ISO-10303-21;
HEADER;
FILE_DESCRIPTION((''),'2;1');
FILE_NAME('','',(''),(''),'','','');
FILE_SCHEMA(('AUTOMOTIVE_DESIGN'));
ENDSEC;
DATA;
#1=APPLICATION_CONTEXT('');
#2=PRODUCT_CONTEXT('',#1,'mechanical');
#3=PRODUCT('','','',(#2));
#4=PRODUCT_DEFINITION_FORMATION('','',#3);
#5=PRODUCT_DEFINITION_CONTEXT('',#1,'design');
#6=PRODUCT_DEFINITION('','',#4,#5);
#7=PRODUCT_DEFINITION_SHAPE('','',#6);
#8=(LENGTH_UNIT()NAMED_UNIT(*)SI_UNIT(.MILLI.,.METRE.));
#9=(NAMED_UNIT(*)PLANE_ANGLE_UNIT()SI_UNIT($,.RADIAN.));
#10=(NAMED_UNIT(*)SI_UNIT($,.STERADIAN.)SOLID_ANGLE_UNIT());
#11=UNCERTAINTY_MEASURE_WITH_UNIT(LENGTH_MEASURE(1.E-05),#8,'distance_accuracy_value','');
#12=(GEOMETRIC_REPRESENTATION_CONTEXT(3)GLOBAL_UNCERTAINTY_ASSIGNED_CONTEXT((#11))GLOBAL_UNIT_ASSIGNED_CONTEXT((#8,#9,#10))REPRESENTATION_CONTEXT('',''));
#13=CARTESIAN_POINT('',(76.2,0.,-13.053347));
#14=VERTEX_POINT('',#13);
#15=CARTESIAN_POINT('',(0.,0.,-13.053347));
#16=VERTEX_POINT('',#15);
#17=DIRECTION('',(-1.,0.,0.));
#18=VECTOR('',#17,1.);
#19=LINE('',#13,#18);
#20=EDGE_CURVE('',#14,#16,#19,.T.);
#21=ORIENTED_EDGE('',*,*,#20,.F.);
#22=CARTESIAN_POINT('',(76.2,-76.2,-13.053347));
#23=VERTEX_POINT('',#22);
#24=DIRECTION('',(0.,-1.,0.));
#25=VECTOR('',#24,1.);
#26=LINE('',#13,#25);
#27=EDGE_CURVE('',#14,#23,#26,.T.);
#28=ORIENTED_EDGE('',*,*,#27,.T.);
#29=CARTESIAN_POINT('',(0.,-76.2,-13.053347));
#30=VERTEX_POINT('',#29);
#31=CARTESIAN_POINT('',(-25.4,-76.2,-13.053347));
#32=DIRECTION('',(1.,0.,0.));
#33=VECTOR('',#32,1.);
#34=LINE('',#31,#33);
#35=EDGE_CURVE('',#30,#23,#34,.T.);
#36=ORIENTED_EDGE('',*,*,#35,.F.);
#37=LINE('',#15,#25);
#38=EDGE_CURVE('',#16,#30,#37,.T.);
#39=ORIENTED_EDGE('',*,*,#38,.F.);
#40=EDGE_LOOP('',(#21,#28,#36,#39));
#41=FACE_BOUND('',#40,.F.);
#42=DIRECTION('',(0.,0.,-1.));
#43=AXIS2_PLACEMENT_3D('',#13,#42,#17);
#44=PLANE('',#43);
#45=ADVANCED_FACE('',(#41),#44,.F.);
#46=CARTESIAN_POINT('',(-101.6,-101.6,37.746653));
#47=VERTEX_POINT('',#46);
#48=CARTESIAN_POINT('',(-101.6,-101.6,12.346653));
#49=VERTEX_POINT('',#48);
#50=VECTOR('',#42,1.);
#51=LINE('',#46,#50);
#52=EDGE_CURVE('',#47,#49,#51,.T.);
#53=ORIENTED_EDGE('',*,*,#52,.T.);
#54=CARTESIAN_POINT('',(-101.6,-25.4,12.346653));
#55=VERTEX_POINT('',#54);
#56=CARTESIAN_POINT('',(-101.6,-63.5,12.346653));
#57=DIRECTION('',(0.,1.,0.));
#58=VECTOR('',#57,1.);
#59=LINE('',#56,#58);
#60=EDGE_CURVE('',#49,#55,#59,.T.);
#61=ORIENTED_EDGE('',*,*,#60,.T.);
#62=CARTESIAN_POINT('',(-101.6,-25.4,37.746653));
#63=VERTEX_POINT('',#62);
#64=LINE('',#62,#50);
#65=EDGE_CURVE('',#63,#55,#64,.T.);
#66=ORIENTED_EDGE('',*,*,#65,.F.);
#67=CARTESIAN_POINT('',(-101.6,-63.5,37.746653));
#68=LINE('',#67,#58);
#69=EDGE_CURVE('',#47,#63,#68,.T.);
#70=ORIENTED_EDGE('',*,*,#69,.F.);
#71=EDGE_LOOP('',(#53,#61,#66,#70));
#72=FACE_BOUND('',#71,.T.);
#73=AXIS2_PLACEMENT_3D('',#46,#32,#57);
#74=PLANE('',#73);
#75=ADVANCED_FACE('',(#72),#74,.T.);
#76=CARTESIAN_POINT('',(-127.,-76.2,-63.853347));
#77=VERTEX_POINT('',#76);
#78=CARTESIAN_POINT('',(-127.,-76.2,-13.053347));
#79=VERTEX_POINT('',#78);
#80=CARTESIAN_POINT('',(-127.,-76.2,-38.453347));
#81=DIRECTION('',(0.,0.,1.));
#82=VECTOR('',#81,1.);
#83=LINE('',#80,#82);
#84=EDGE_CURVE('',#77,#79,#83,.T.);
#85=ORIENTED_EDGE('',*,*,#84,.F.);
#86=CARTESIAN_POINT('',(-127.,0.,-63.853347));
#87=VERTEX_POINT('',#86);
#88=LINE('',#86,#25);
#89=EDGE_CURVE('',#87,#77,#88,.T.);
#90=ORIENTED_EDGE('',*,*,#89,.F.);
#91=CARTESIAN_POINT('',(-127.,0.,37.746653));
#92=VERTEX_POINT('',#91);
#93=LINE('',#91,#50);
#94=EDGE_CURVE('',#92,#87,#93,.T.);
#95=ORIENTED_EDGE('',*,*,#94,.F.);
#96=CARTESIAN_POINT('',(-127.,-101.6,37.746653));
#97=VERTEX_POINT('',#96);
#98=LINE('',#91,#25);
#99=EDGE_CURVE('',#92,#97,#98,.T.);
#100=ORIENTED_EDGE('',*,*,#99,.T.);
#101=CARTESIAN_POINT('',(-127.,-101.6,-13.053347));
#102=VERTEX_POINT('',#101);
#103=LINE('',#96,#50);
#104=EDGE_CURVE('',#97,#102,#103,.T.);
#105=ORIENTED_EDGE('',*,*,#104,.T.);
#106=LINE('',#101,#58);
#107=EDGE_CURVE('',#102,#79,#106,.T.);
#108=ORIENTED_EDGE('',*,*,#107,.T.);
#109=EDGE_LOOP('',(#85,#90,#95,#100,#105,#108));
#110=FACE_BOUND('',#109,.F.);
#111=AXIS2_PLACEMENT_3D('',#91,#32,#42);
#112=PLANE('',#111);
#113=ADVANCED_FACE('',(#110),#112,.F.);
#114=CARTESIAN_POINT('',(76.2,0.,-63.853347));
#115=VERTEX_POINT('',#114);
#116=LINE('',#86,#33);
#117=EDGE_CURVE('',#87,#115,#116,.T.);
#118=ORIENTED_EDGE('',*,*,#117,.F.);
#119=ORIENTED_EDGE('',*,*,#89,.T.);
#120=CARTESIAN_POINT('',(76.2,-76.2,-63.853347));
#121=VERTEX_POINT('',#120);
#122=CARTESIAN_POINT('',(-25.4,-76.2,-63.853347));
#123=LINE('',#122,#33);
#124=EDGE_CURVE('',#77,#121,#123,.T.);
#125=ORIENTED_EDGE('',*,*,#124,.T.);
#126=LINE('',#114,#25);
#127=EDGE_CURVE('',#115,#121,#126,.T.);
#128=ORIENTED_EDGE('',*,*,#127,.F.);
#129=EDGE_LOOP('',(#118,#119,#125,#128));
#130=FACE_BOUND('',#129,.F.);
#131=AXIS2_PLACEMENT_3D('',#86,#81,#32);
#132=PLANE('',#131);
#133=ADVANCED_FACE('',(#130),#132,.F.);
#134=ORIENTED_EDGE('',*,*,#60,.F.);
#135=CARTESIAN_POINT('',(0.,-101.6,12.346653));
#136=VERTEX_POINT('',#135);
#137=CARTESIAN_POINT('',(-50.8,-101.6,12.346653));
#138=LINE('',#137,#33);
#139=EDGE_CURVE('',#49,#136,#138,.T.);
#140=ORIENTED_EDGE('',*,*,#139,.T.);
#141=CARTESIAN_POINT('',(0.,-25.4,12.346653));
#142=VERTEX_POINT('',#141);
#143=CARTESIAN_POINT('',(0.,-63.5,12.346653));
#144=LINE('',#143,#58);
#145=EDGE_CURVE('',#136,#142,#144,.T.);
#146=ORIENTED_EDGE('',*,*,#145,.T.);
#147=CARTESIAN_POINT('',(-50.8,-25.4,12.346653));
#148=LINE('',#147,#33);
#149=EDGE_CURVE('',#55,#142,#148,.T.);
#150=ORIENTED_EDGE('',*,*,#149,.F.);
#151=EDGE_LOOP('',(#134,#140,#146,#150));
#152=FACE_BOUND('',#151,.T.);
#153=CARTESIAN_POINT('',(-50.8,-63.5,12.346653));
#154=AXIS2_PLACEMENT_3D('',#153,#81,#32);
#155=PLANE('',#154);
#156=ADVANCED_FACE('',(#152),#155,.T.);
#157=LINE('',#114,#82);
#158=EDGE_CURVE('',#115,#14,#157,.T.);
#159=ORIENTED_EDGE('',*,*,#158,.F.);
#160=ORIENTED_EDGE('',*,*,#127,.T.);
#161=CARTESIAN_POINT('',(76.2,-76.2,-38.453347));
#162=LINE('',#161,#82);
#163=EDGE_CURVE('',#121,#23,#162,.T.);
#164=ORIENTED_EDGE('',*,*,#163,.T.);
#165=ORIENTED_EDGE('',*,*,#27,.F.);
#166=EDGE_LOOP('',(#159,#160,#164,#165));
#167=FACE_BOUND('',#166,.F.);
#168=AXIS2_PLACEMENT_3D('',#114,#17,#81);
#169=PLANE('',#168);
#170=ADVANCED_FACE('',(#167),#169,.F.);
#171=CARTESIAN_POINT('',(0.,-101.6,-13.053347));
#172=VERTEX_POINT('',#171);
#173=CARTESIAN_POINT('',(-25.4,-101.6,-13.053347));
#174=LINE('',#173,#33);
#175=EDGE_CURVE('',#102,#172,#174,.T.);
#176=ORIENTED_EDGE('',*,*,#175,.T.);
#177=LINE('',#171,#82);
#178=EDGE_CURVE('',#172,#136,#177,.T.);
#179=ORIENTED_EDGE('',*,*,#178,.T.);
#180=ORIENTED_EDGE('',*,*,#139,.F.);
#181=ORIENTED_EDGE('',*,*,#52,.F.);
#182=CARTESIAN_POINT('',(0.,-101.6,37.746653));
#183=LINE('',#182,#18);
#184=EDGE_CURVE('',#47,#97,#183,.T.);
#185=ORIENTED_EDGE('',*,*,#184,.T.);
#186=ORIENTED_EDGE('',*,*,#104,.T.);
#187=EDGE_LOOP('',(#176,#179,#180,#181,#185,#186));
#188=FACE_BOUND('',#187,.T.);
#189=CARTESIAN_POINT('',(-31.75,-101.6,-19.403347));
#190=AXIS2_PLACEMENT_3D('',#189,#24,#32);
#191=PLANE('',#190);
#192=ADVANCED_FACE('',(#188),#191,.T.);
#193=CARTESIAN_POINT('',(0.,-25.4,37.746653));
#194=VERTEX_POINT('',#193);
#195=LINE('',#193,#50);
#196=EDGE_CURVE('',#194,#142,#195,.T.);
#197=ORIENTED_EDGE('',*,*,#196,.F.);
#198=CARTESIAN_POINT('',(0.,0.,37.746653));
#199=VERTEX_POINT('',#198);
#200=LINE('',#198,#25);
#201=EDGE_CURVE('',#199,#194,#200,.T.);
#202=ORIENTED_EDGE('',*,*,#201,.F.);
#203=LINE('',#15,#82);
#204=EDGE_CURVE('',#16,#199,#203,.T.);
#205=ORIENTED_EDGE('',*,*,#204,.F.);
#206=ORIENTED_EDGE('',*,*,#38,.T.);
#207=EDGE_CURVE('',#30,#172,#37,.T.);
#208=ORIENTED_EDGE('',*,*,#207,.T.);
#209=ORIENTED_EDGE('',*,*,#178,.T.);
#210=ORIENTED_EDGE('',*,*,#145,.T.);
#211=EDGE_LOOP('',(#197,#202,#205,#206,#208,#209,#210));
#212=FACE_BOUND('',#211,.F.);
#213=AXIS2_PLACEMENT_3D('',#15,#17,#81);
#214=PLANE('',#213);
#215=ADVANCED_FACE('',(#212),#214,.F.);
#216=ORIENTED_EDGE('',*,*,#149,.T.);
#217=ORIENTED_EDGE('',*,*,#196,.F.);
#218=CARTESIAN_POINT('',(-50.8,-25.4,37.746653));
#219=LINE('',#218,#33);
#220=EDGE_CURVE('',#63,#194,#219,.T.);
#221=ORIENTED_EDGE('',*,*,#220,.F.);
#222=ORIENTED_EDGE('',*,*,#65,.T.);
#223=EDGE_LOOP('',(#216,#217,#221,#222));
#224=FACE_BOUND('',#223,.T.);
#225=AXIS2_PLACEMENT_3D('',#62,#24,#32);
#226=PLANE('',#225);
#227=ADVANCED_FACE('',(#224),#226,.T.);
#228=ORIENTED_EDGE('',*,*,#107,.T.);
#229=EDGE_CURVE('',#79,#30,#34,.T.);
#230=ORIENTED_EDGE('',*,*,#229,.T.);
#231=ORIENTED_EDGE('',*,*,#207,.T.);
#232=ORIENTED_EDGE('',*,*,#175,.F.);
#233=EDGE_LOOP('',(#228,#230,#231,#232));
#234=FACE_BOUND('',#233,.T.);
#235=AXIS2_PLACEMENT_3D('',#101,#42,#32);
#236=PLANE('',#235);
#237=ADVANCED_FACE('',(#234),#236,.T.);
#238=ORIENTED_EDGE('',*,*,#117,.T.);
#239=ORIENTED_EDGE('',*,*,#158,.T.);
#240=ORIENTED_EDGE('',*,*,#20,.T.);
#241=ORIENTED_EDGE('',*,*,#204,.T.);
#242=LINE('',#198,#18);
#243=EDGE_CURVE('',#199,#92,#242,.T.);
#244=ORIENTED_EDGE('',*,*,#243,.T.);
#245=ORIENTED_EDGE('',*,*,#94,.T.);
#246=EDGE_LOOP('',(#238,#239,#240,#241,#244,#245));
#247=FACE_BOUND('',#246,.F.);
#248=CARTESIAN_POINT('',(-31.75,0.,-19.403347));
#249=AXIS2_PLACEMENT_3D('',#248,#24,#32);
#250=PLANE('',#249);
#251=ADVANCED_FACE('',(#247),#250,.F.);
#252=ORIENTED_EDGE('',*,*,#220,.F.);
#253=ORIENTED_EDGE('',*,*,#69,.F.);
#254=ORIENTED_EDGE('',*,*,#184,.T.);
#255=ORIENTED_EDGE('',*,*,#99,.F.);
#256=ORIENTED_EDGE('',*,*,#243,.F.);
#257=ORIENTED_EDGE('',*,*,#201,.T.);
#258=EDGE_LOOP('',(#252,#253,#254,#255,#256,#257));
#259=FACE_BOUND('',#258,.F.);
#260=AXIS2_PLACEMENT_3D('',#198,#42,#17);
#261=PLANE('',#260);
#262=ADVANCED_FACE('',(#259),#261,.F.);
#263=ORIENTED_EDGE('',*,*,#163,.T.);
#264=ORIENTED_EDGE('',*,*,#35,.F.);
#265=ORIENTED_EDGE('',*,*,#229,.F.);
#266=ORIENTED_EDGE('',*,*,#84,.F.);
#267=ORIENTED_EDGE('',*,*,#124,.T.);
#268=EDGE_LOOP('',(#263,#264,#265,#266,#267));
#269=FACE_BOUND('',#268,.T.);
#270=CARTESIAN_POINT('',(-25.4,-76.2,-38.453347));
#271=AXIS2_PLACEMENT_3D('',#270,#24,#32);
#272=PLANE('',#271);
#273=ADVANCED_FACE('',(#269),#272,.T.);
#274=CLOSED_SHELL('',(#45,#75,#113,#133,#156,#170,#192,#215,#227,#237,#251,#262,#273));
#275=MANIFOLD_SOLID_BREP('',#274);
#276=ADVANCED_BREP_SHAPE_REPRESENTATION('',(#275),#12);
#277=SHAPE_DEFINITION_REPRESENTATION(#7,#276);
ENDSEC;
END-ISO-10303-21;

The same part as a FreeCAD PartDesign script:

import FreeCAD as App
import Part
import Sketcher

V = App.Vector
Q = App.Units.Quantity


def add_polygon(sketch, points):
    """Adds a closed chain of lines whose ends are joined by coincident constraints."""
    first, n = sketch.GeometryCount, len(points)
    for a, b in zip(points, points[1:] + points[:1]):
        sketch.addGeometry(Part.LineSegment(App.Vector(*a, 0), App.Vector(*b, 0)), False)
    for i in range(n):
        sketch.addConstraint(Sketcher.Constraint("Coincident", first + i, 2, first + (i + 1) % n, 1))

doc = App.newDocument("Part")
body = doc.addObject("PartDesign::Body", "Body")

sketch1 = body.newObject("Sketcher::SketchObject", "Sketch")
sketch1.AttachmentSupport = (doc.getObject("XZ_Plane"), [""])
sketch1.MapMode = "FlatFace"
add_polygon(sketch1, [(0, 37.746653), (-127, 37.746653), (-127, -63.853347), (76.2, -63.853347), (76.2, -13.053347), (0, -13.053347)])
sketch1.addConstraint([
    Sketcher.Constraint("Horizontal", 0),
    Sketcher.Constraint("Vertical", 1),
    Sketcher.Constraint("Horizontal", 2),
    Sketcher.Constraint("Vertical", 3),
    Sketcher.Constraint("Horizontal", 4),
    Sketcher.Constraint("Vertical", 5),
    Sketcher.Constraint("PointOnObject", 4, 2, -2),
    Sketcher.Constraint("Equal", 3, 5),
    Sketcher.Constraint("DistanceX", 0, 2, 0, 1, Q("5 in")),
    Sketcher.Constraint("DistanceX", 2, 1, 2, 2, Q("8 in")),
    Sketcher.Constraint("DistanceY", 1, 2, 1, 1, Q("4 in")),
    Sketcher.Constraint("DistanceY", -1, 1, 0, 2, Q("37.746653 mm")),
])
pad1 = body.newObject("PartDesign::Pad", "Pad")
pad1.Profile = sketch1
pad1.Length = Q("4 in")

sketch2 = body.newObject("Sketcher::SketchObject", "Sketch001")
sketch2.AttachmentSupport = (doc.getObject("XY_Plane"), [""])
sketch2.MapMode = "FlatFace"
sketch2.AttachmentOffset = App.Placement(V(0, 0, 37.746653), App.Rotation())
add_polygon(sketch2, [(-101.6, -25.4), (-101.6, -101.6), (0, -101.6), (0, -25.4)])
sketch2.addConstraint([
    Sketcher.Constraint("Vertical", 0),
    Sketcher.Constraint("Horizontal", 1),
    Sketcher.Constraint("Vertical", 2),
    Sketcher.Constraint("Horizontal", 3),
    Sketcher.Constraint("PointOnObject", 1, 2, -2),
    Sketcher.Constraint("DistanceX", 1, 1, 1, 2, Q("4 in")),
    Sketcher.Constraint("DistanceY", 0, 2, 0, 1, Q("3 in")),
    Sketcher.Constraint("DistanceY", 0, 2, -1, 1, Q("4 in")),
])
pocket1 = body.newObject("PartDesign::Pocket", "Pocket")
pocket1.Profile = sketch2
pocket1.Length = Q("1 in")

sketch3 = body.newObject("Sketcher::SketchObject", "Sketch002")
sketch3.AttachmentSupport = (doc.getObject("XZ_Plane"), [""])
sketch3.MapMode = "FlatFace"
sketch3.AttachmentOffset = App.Placement(V(0, 0, 4 * 25.4), App.Rotation())
add_polygon(sketch3, [(-127, -13.053347), (-127, -63.853347), (76.2, -63.853347), (76.2, -13.053347)])
sketch3.addConstraint([
    Sketcher.Constraint("Vertical", 0),
    Sketcher.Constraint("Horizontal", 1),
    Sketcher.Constraint("Vertical", 2),
    Sketcher.Constraint("Horizontal", 3),
    Sketcher.Constraint("DistanceX", 1, 1, 1, 2, Q("8 in")),
    Sketcher.Constraint("DistanceY", 0, 2, 0, 1, Q("2 in")),
    Sketcher.Constraint("DistanceX", 0, 2, -1, 1, Q("5 in")),
    Sketcher.Constraint("DistanceY", 0, 2, -1, 1, Q("63.853347 mm")),
])
pocket2 = body.newObject("PartDesign::Pocket", "Pocket001")
pocket2.Profile = sketch3
pocket2.Length = Q("1 in")

doc.recompute()
